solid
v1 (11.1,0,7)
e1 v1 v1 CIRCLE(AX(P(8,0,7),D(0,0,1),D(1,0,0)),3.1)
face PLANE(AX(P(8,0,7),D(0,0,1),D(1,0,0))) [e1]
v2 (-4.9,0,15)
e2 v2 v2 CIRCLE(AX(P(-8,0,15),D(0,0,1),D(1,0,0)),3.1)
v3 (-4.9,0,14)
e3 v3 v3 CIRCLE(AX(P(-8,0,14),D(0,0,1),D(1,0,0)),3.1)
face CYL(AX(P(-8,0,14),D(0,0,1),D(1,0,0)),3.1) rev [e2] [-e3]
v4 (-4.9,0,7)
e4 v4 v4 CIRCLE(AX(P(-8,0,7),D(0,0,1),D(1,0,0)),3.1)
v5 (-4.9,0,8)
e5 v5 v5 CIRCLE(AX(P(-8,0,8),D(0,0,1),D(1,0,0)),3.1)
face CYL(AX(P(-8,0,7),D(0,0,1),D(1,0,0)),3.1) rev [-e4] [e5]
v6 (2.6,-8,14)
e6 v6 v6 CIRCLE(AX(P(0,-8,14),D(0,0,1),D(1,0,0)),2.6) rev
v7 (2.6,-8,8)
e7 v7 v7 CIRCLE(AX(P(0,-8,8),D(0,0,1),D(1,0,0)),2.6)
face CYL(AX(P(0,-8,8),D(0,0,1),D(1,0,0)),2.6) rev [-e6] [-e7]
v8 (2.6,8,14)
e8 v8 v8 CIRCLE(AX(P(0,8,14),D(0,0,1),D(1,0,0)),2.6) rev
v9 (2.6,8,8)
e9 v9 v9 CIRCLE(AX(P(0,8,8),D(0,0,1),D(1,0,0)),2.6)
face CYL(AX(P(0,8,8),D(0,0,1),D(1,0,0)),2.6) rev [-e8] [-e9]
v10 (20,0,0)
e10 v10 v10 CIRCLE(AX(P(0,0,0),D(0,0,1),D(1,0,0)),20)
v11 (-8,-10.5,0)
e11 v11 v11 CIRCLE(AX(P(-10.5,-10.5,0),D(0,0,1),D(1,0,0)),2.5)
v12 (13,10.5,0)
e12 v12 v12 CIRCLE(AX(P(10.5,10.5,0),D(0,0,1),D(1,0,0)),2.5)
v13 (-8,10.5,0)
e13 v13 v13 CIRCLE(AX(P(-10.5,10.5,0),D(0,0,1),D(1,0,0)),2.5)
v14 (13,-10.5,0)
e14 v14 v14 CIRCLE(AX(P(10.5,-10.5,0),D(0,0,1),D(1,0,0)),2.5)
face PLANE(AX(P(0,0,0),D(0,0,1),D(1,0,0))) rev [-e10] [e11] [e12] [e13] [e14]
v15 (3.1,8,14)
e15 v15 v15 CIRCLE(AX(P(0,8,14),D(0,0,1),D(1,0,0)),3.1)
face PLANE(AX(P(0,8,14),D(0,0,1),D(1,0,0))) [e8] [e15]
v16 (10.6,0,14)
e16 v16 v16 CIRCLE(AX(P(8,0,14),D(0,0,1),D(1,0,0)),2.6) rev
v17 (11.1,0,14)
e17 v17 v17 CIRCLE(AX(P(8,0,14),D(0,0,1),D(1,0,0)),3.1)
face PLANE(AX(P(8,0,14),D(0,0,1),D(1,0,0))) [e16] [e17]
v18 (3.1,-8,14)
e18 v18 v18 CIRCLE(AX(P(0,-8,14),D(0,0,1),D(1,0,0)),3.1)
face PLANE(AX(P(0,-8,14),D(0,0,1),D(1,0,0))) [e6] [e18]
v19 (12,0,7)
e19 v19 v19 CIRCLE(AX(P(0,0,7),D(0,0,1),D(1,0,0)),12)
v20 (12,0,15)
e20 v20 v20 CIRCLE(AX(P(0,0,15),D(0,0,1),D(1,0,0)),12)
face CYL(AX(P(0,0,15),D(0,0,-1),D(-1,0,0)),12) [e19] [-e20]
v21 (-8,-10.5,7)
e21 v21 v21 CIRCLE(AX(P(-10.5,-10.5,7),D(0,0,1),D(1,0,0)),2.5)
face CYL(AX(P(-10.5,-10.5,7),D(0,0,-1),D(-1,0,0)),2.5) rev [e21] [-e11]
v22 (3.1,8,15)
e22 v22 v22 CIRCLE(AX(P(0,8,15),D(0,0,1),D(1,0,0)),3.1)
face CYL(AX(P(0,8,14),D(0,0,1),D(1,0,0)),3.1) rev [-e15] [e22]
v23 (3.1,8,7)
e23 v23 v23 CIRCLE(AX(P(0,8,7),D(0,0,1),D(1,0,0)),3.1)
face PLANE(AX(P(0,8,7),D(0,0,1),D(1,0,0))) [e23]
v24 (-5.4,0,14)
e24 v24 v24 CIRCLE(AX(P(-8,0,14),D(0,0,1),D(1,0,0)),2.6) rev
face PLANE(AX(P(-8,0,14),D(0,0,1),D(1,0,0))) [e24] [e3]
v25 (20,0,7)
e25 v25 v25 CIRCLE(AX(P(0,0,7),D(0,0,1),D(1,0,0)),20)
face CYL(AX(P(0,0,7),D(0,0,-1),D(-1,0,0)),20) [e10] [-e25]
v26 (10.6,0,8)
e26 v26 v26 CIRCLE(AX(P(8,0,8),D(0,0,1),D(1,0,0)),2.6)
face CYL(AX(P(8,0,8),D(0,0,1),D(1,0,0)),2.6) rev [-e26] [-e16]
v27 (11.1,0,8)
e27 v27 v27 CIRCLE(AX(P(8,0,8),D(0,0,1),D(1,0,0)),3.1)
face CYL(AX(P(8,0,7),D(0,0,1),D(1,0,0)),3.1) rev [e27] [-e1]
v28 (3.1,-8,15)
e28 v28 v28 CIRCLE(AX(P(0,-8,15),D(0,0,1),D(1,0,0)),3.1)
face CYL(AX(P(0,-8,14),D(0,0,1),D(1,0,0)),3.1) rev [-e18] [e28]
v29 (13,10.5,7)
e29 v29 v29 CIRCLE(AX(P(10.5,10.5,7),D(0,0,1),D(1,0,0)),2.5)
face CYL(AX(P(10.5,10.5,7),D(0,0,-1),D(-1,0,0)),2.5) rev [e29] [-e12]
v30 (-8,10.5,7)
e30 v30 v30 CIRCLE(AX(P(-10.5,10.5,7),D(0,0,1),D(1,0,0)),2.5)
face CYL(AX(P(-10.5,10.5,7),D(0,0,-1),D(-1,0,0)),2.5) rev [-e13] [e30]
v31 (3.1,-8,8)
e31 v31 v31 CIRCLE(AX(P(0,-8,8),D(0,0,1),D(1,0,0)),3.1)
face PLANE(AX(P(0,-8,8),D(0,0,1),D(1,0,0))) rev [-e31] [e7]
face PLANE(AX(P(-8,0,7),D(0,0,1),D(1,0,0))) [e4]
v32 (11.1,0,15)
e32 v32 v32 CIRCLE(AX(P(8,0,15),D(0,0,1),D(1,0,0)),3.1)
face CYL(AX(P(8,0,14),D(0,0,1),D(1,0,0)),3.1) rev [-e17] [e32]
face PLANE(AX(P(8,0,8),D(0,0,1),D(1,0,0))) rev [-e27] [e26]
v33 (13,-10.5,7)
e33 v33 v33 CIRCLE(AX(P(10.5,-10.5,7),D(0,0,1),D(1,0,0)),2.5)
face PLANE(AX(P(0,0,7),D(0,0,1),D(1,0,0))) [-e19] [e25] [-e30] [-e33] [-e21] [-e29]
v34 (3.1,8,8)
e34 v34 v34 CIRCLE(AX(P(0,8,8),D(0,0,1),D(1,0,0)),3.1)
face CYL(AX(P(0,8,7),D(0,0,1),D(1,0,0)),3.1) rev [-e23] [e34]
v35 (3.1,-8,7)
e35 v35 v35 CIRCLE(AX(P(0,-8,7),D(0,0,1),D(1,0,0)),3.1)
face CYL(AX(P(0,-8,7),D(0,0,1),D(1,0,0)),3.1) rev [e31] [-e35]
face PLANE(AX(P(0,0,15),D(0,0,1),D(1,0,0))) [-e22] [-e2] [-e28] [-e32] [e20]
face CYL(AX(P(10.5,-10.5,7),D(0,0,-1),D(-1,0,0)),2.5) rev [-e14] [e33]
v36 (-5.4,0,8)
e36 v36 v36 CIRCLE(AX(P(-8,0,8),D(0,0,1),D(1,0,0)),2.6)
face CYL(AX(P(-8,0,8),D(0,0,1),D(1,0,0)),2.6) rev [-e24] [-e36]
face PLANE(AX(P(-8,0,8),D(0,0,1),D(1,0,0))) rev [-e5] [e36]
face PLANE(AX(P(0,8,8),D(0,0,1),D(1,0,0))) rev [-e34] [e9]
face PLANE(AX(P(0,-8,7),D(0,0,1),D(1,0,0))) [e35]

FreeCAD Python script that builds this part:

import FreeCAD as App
import Part
import Sketcher
from FreeCAD import Vector
Q = App.Units.Quantity

doc = App.newDocument("Part")
body = doc.addObject("PartDesign::Body", "Body")

sketch1 = body.newObject("Sketcher::SketchObject", "Sketch")
sketch1.AttachmentSupport = (doc.getObject("XY_Plane"), [""])
sketch1.MapMode = "FlatFace"
sketch1.addGeometry(Part.Circle(Vector(0, 0, 0), Vector(0, 0, 1), 20), False)
sketch1.addGeometry(Part.Circle(Vector(-10.5, -10.5, 0), Vector(0, 0, 1), 2.5), False)
sketch1.addGeometry(Part.Circle(Vector(10.5, -10.5, 0), Vector(0, 0, 1), 2.5), False)
sketch1.addGeometry(Part.Circle(Vector(-10.5, 10.5, 0), Vector(0, 0, 1), 2.5), False)
sketch1.addGeometry(Part.Circle(Vector(10.5, 10.5, 0), Vector(0, 0, 1), 2.5), False)
sketch1.addConstraint(Sketcher.Constraint("Coincident", 0, 3, -1, 1))
sketch1.addConstraint(Sketcher.Constraint("Equal", 1, 2))
sketch1.addConstraint(Sketcher.Constraint("Equal", 2, 3))
sketch1.addConstraint(Sketcher.Constraint("Equal", 3, 4))
sketch1.addConstraint(Sketcher.Constraint("Symmetric", 2, 3, 3, 3, -1, 1))
sketch1.addConstraint(Sketcher.Constraint("Symmetric", 1, 3, 4, 3, -1, 1))
sketch1.addConstraint(Sketcher.Constraint("Symmetric", 1, 3, 2, 3, -2))
sketch1.addConstraint(Sketcher.Constraint("Diameter", 0, Q("40 mm")))
sketch1.addConstraint(Sketcher.Constraint("Diameter", 1, Q("5 mm")))
sketch1.addConstraint(Sketcher.Constraint("DistanceX", 1, 3, 2, 3, Q("21 mm")))
sketch1.addConstraint(Sketcher.Constraint("DistanceY", 1, 3, 3, 3, Q("21 mm")))
pad1 = body.newObject("PartDesign::Pad", "Pad")
pad1.Profile = sketch1
pad1.Length = 7

sketch2 = body.newObject("Sketcher::SketchObject", "Sketch001")
sketch2.AttachmentSupport = (doc.getObject("XY_Plane"), [""])
sketch2.MapMode = "FlatFace"
sketch2.AttachmentOffset = App.Placement(Vector(0, 0, 7), App.Rotation())
sketch2.addGeometry(Part.Circle(Vector(0, 0, 0), Vector(0, 0, 1), 12), False)
sketch2.addConstraint(Sketcher.Constraint("Coincident", 0, 3, -1, 1))
sketch2.addConstraint(Sketcher.Constraint("Diameter", 0, Q("24 mm")))
pad2 = body.newObject("PartDesign::Pad", "Pad001")
pad2.Profile = sketch2
pad2.Length = 8

sketch3 = body.newObject("Sketcher::SketchObject", "Sketch002")
sketch3.AttachmentSupport = (doc.getObject("XY_Plane"), [""])
sketch3.MapMode = "FlatFace"
sketch3.AttachmentOffset = App.Placement(Vector(0, 0, 15), App.Rotation())
sketch3.addGeometry(Part.Circle(Vector(-8, 0, 0), Vector(0, 0, 1), 2.6), False)
sketch3.addGeometry(Part.Circle(Vector(0, 8, 0), Vector(0, 0, 1), 2.6), False)
sketch3.addGeometry(Part.Circle(Vector(8, 0, 0), Vector(0, 0, 1), 2.6), False)
sketch3.addGeometry(Part.Circle(Vector(0, -8, 0), Vector(0, 0, 1), 2.6), False)
sketch3.addConstraint(Sketcher.Constraint("Equal", 0, 1))
sketch3.addConstraint(Sketcher.Constraint("Equal", 1, 2))
sketch3.addConstraint(Sketcher.Constraint("Equal", 2, 3))
sketch3.addConstraint(Sketcher.Constraint("Symmetric", 0, 3, 2, 3, -1, 1))
sketch3.addConstraint(Sketcher.Constraint("Symmetric", 1, 3, 3, 3, -1, 1))
sketch3.addConstraint(Sketcher.Constraint("PointOnObject", 0, 3, -1))
sketch3.addConstraint(Sketcher.Constraint("PointOnObject", 1, 3, -2))
sketch3.addConstraint(Sketcher.Constraint("Diameter", 0, Q("5.2 mm")))
sketch3.addConstraint(Sketcher.Constraint("DistanceX", 0, 3, -1, 1, Q("8 mm")))
sketch3.addConstraint(Sketcher.Constraint("DistanceY", -1, 1, 1, 3, Q("8 mm")))
pocket1 = body.newObject("PartDesign::Pocket", "Pocket")
pocket1.Profile = sketch3
pocket1.Length = 7

sketch4 = body.newObject("Sketcher::SketchObject", "Sketch003")
sketch4.AttachmentSupport = (doc.getObject("XY_Plane"), [""])
sketch4.MapMode = "FlatFace"
sketch4.AttachmentOffset = App.Placement(Vector(0, 0, 15), App.Rotation())
sketch4.addGeometry(Part.Circle(Vector(-8, 0, 0), Vector(0, 0, 1), 3.1), False)
sketch4.addGeometry(Part.Circle(Vector(0, 8, 0), Vector(0, 0, 1), 3.1), False)
sketch4.addGeometry(Part.Circle(Vector(8, 0, 0), Vector(0, 0, 1), 3.1), False)
sketch4.addGeometry(Part.Circle(Vector(0, -8, 0), Vector(0, 0, 1), 3.1), False)
sketch4.addConstraint(Sketcher.Constraint("Equal", 0, 1))
sketch4.addConstraint(Sketcher.Constraint("Equal", 1, 2))
sketch4.addConstraint(Sketcher.Constraint("Equal", 2, 3))
sketch4.addConstraint(Sketcher.Constraint("Symmetric", 0, 3, 2, 3, -1, 1))
sketch4.addConstraint(Sketcher.Constraint("Symmetric", 1, 3, 3, 3, -1, 1))
sketch4.addConstraint(Sketcher.Constraint("PointOnObject", 0, 3, -1))
sketch4.addConstraint(Sketcher.Constraint("PointOnObject", 1, 3, -2))
sketch4.addConstraint(Sketcher.Constraint("Diameter", 0, Q("6.2 mm")))
sketch4.addConstraint(Sketcher.Constraint("DistanceX", 0, 3, -1, 1, Q("8 mm")))
sketch4.addConstraint(Sketcher.Constraint("DistanceY", -1, 1, 1, 3, Q("8 mm")))
pocket2 = body.newObject("PartDesign::Pocket", "Pocket001")
pocket2.Profile = sketch4
pocket2.Length = 1

sketch5 = body.newObject("Sketcher::SketchObject", "Sketch004")
sketch5.AttachmentSupport = (doc.getObject("XY_Plane"), [""])
sketch5.MapMode = "FlatFace"
sketch5.AttachmentOffset = App.Placement(Vector(0, 0, 8), App.Rotation())
sketch5.addGeometry(Part.Circle(Vector(8, 0, 0), Vector(0, 0, 1), 3.1), False)
sketch5.addGeometry(Part.Circle(Vector(0, 8, 0), Vector(0, 0, 1), 3.1), False)
sketch5.addGeometry(Part.Circle(Vector(-8, 0, 0), Vector(0, 0, 1), 3.1), False)
sketch5.addGeometry(Part.Circle(Vector(0, -8, 0), Vector(0, 0, 1), 3.1), False)
sketch5.addConstraint(Sketcher.Constraint("Equal", 0, 1))
sketch5.addConstraint(Sketcher.Constraint("Equal", 1, 2))
sketch5.addConstraint(Sketcher.Constraint("Equal", 2, 3))
sketch5.addConstraint(Sketcher.Constraint("Symmetric", 0, 3, 2, 3, -1, 1))
sketch5.addConstraint(Sketcher.Constraint("Symmetric", 1, 3, 3, 3, -1, 1))
sketch5.addConstraint(Sketcher.Constraint("PointOnObject", 0, 3, -1))
sketch5.addConstraint(Sketcher.Constraint("PointOnObject", 1, 3, -2))
sketch5.addConstraint(Sketcher.Constraint("Diameter", 0, Q("6.2 mm")))
sketch5.addConstraint(Sketcher.Constraint("DistanceX", -1, 1, 0, 3, Q("8 mm")))
sketch5.addConstraint(Sketcher.Constraint("DistanceY", -1, 1, 1, 3, Q("8 mm")))
pocket3 = body.newObject("PartDesign::Pocket", "Pocket002")
pocket3.Profile = sketch5
pocket3.Length = 1

doc.recompute()
